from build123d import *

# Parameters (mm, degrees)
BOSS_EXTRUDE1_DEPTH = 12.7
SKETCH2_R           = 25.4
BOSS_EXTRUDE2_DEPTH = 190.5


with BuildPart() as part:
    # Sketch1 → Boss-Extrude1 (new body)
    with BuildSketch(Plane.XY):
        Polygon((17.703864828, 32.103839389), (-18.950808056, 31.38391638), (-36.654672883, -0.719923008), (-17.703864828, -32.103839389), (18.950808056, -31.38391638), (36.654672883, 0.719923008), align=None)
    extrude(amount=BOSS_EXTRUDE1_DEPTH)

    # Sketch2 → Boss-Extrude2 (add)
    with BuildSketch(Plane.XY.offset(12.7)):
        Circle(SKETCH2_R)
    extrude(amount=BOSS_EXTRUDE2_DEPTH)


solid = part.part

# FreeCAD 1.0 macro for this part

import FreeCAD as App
import Part
import Sketcher
from FreeCAD import Vector
Q = App.Units.Quantity


def add_polygon(sketch, points):
    """Adds a closed chain of lines whose ends are joined by coincident constraints."""
    first, n = sketch.GeometryCount, len(points)
    for a, b in zip(points, points[1:] + points[:1]):
        sketch.addGeometry(Part.LineSegment(App.Vector(*a, 0), App.Vector(*b, 0)), False)
    for i in range(n):
        sketch.addConstraint(Sketcher.Constraint("Coincident", first + i, 2, first + (i + 1) % n, 1))

doc = App.newDocument("Part")
params = doc.addObject("Spreadsheet::Sheet", "Params")
for row, (alias, value) in enumerate([
    ("pad1_length", "0.5 in"),
    ("sketch2_diameter", "2 in"),
    ("pad2_length", "7.5 in"),
], start=1):
    params.set(f"A{row}", alias)
    params.set(f"B{row}", "=" + value)
    params.setAlias(f"B{row}", alias)

body = doc.addObject("PartDesign::Body", "Body")

# Sketch on XY plane
sketch1 = doc.addObject("Sketcher::SketchObject", "Sketch")
body.addObject(sketch1)
sketch1.AttachmentSupport = (doc.XY_Plane, [""])
sketch1.MapMode = "FlatFace"
add_polygon(sketch1, [(18, 32), (-19, 31), (-37, -1), (-18, -32), (19, -31), (37, 1)])  # lines 0-5
sketch1.addConstraint(Sketcher.Constraint("Symmetric", 0, 2, 3, 2, -1, 1))
sketch1.addConstraint(Sketcher.Constraint("Symmetric", 1, 2, 4, 2, -1, 1))
sketch1.addConstraint(Sketcher.Constraint("Symmetric", 2, 2, 5, 2, -1, 1))
sketch1.addConstraint(Sketcher.Constraint("Equal", 0, 1))
sketch1.addConstraint(Sketcher.Constraint("Equal", 1, 2))
sketch1.addConstraint(Sketcher.Constraint("DistanceX", 2, 2, 4, 2, Q("2.1400999 in")))
sketch1.addConstraint(Sketcher.Constraint("DistanceX", 0, 2, -1, 1, Q("18.950808 mm")))
sketch1.addConstraint(Sketcher.Constraint("DistanceY", 2, 2, -1, 1, Q("32.103839 mm")))
sketch1.addConstraint(Sketcher.Constraint("DistanceY", 1, 2, 0, 2, Q("32.103839 mm")))
pad1 = doc.addObject("PartDesign::Pad", "Pad")
body.addObject(pad1)
pad1.Profile = sketch1
pad1.setExpression("Length", "Params.pad1_length")

# Sketch on XY plane
sketch2 = doc.addObject("Sketcher::SketchObject", "Sketch001")
body.addObject(sketch2)
sketch2.AttachmentSupport = (doc.XY_Plane, [""])
sketch2.MapMode = "FlatFace"
sketch2.AttachmentOffset = App.Placement(Vector(0, 0, 0.5 * 25.4), App.Rotation())
sketch2.addGeometry(Part.Circle(Vector(0, 0, 0), Vector(0, 0, 1), 25), False)
sketch2.addConstraint(Sketcher.Constraint("Coincident", 0, 3, -1, 1))
sketch2.addConstraint(Sketcher.Constraint("Diameter", 0, Q("2 in")))
sketch2.setExpression("Constraints[1]", "Params.sketch2_diameter")
pad2 = doc.addObject("PartDesign::Pad", "Pad001")
body.addObject(pad2)
pad2.Profile = sketch2
pad2.setExpression("Length", "Params.pad2_length")

doc.recompute()
